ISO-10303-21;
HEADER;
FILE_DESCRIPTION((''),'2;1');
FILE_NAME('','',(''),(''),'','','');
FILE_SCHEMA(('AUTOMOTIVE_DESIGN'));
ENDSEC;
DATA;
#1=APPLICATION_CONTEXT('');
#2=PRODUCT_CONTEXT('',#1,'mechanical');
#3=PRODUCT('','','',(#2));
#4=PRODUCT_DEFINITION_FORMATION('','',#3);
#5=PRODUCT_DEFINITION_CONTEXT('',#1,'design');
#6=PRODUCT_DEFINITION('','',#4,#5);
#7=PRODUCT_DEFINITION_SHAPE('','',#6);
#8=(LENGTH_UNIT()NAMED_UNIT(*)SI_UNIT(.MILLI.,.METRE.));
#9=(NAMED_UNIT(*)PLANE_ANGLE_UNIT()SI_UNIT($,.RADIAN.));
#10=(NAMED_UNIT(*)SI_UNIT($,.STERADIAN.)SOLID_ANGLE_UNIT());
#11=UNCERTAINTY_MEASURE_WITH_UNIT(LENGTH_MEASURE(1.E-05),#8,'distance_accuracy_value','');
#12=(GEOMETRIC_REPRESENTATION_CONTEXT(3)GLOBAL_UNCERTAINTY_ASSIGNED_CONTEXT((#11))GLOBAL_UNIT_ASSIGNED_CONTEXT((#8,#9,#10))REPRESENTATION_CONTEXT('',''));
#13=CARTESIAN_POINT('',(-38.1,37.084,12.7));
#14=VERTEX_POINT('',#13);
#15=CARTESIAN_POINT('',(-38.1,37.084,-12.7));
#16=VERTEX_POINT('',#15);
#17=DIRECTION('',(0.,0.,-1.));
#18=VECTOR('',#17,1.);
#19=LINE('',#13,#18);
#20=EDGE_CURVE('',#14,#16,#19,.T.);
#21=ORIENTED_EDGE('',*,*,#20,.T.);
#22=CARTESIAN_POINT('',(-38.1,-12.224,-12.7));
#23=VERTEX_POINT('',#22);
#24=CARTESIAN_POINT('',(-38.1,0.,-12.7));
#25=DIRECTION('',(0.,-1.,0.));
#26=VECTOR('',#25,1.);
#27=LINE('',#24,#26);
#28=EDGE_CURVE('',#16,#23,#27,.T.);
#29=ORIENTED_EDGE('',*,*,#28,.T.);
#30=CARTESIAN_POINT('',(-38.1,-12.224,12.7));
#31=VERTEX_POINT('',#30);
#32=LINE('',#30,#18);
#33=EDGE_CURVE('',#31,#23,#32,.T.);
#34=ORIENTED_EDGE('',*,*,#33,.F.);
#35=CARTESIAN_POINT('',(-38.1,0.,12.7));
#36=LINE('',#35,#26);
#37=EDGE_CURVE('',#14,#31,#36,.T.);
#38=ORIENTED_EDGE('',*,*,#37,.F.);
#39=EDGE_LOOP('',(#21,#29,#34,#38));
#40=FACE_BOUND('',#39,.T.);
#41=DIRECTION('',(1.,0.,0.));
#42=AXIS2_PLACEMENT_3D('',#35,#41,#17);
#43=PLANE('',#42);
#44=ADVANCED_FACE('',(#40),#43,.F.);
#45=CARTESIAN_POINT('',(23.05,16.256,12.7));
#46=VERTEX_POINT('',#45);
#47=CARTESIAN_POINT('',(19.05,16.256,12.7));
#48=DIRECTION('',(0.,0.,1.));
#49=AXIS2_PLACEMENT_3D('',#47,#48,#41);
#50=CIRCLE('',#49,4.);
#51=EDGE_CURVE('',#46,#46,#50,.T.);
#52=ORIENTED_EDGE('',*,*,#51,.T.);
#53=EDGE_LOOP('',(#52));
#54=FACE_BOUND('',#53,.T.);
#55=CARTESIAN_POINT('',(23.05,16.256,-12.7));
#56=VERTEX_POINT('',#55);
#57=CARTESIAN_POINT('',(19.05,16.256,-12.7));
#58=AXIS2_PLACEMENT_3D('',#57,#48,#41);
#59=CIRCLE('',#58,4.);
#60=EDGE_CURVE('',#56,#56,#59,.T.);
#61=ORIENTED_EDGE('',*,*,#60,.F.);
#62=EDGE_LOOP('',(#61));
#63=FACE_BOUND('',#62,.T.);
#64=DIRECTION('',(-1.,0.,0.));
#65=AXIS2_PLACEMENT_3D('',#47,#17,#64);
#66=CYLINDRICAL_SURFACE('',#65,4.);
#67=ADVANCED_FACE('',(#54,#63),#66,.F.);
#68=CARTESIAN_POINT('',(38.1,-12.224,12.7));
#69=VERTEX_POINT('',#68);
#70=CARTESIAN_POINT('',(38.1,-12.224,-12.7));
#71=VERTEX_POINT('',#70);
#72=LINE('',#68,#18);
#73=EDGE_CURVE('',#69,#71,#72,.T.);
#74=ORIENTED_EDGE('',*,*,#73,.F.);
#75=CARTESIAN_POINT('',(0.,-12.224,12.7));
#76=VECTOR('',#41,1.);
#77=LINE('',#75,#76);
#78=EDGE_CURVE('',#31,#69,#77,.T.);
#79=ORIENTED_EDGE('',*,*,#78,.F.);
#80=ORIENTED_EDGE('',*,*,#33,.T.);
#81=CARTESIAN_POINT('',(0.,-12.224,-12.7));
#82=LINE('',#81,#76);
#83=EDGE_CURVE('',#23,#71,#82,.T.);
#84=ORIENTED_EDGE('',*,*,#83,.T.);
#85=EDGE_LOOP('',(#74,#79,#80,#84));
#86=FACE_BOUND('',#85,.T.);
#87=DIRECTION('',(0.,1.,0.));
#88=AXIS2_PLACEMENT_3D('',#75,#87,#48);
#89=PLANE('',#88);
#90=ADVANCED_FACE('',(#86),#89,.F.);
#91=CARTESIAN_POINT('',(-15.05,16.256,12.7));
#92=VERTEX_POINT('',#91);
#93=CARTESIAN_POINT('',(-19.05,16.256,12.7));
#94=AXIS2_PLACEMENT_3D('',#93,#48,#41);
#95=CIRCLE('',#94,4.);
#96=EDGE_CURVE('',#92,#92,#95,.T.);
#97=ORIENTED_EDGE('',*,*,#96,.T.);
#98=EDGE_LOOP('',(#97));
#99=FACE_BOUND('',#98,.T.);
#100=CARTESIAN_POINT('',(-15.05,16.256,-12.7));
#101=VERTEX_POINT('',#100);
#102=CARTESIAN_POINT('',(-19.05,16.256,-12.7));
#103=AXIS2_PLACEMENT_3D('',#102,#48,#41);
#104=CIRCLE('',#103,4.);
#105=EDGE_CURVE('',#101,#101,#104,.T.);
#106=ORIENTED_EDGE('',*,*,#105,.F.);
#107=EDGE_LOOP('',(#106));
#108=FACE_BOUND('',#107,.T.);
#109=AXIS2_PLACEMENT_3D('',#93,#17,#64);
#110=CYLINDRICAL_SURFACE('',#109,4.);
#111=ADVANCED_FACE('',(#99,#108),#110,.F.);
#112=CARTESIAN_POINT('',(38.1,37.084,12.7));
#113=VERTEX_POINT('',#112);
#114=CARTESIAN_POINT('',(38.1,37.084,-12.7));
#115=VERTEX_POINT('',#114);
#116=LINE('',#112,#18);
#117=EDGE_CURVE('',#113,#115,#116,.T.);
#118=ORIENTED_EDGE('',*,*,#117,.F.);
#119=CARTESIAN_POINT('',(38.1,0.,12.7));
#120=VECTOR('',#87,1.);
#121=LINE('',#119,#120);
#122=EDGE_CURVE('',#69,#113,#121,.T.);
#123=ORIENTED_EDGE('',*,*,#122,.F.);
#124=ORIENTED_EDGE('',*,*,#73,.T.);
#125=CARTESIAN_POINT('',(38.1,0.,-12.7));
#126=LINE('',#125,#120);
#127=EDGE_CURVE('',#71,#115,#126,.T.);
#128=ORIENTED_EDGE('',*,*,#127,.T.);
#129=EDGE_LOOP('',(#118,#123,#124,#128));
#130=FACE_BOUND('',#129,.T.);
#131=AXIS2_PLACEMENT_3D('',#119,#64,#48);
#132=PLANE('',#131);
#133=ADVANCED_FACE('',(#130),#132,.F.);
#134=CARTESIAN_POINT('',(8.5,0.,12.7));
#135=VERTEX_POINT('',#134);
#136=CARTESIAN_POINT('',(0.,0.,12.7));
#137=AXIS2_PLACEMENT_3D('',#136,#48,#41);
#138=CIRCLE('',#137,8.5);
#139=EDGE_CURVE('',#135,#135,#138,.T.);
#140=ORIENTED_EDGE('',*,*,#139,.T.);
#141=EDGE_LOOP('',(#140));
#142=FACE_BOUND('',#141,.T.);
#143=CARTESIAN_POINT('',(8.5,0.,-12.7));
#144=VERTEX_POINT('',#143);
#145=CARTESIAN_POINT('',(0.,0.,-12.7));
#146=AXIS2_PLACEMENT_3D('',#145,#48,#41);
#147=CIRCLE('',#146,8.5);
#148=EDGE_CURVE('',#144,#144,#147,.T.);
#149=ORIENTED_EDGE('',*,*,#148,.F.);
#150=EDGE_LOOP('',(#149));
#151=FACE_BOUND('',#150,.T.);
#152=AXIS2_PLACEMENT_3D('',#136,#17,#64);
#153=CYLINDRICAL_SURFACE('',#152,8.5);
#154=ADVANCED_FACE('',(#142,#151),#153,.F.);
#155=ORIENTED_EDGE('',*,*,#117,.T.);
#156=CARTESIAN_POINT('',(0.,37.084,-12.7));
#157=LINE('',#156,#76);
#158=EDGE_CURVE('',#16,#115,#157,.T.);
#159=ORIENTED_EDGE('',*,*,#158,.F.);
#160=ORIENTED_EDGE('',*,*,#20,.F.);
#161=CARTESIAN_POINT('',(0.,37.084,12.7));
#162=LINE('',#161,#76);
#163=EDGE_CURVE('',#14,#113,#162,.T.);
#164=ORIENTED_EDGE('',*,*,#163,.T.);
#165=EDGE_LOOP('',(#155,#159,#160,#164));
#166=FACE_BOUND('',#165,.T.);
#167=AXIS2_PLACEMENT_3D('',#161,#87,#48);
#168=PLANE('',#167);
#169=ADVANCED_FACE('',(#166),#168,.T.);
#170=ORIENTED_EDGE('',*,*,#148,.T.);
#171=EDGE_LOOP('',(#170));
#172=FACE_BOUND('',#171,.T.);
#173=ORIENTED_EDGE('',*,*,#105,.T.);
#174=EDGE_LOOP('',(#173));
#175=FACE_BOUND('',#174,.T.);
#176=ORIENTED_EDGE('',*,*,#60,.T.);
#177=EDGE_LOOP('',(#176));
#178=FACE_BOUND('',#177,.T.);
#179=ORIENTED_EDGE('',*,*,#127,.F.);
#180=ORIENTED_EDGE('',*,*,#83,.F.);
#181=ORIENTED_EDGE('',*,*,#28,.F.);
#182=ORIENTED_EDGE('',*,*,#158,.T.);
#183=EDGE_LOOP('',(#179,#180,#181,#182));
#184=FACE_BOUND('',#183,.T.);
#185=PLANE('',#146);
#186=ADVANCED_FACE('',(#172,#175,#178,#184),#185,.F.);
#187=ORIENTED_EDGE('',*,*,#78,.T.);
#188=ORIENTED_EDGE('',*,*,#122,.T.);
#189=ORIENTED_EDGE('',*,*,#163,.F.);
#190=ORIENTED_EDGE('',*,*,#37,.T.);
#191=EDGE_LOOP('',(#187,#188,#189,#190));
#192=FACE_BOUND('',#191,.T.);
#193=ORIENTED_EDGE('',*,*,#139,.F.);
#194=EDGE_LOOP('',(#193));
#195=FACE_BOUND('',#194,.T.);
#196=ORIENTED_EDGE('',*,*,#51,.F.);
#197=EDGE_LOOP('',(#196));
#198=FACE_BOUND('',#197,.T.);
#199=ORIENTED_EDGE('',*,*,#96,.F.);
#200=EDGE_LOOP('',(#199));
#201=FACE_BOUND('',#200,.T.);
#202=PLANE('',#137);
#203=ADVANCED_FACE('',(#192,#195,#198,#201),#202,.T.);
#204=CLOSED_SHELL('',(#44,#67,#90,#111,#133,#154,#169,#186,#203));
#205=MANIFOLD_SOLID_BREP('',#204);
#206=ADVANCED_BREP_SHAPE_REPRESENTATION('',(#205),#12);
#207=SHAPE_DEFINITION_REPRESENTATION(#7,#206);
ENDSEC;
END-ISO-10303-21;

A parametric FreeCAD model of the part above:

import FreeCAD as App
import Part
import Sketcher

V = App.Vector


def add_polygon(sketch, points):
    """Adds a closed chain of lines whose ends are joined by coincident constraints."""
    first, n = sketch.GeometryCount, len(points)
    for a, b in zip(points, points[1:] + points[:1]):
        sketch.addGeometry(Part.LineSegment(App.Vector(*a, 0), App.Vector(*b, 0)), False)
    for i in range(n):
        sketch.addConstraint(Sketcher.Constraint("Coincident", first + i, 2, first + (i + 1) % n, 1))

doc = App.newDocument("Part")
params = doc.addObject("Spreadsheet::Sheet", "Params")
for row, (alias, value) in enumerate([
    ("sketch1_diameter", "17 mm"),
    ("sketch1_diameter2", "8 mm"),
    ("sketch1_width", "76.2 mm"),
    ("pad1_length", "25.4 mm"),
], start=1):
    params.set(f"A{row}", alias)
    params.set(f"B{row}", "=" + value)
    params.setAlias(f"B{row}", alias)

body = doc.addObject("PartDesign::Body", "Body")

# Sketch on XY plane
sketch1 = body.newObject("Sketcher::SketchObject", "Sketch")
sketch1.AttachmentSupport = (doc.getObject("XY_Plane"), [""])
sketch1.MapMode = "FlatFace"
add_polygon(sketch1, [(38.1, 37.1), (-38.1, 37.1), (-38.1, -12.2), (38.1, -12.2)])  # lines 0-3
sketch1.addGeometry(Part.Circle(V(0, 0, 0), V(0, 0, 1), 8.5), False)  # 4
sketch1.addGeometry(Part.Circle(V(19.1, 16.3, 0), V(0, 0, 1), 4), False)  # 5
sketch1.addGeometry(Part.Circle(V(-19.1, 16.3, 0), V(0, 0, 1), 4), False)  # 6
sketch1.addConstraint(Sketcher.Constraint("Horizontal", 0))
sketch1.addConstraint(Sketcher.Constraint("Vertical", 1))
sketch1.addConstraint(Sketcher.Constraint("Horizontal", 2))
sketch1.addConstraint(Sketcher.Constraint("Vertical", 3))
sketch1.addConstraint(Sketcher.Constraint("Coincident", 4, 3, -1, 1))
sketch1.addConstraint(Sketcher.Constraint("Equal", 5, 6))
sketch1.addConstraint(Sketcher.Constraint("Symmetric", 5, 3, 6, 3, -2))
sketch1.addConstraint(Sketcher.Constraint("Diameter", 4, 17.0))
sketch1.addConstraint(Sketcher.Constraint("Diameter", 5, 8.0))
sketch1.addConstraint(Sketcher.Constraint("DistanceX", 0, 2, 0, 1, 76.2))
sketch1.addConstraint(Sketcher.Constraint("DistanceX", 0, 2, -1, 1, 38.1))
sketch1.addConstraint(Sketcher.Constraint("DistanceX", 6, 3, 5, 3, 38.1))
sketch1.addConstraint(Sketcher.Constraint("DistanceY", 1, 2, 1, 1, 49.308))
sketch1.addConstraint(Sketcher.Constraint("DistanceY", 1, 2, 6, 3, 28.48))
sketch1.addConstraint(Sketcher.Constraint("DistanceY", -1, 1, 5, 3, 16.256))
sketch1.setExpression("Constraints[11]", "Params.sketch1_diameter")
sketch1.setExpression("Constraints[12]", "Params.sketch1_diameter2")
sketch1.setExpression("Constraints[13]", "Params.sketch1_width")
pad1 = body.newObject("PartDesign::Pad", "Pad")
pad1.Profile = sketch1
pad1.setExpression("Length", "Params.pad1_length")
pad1.Midplane = True

doc.recompute()
